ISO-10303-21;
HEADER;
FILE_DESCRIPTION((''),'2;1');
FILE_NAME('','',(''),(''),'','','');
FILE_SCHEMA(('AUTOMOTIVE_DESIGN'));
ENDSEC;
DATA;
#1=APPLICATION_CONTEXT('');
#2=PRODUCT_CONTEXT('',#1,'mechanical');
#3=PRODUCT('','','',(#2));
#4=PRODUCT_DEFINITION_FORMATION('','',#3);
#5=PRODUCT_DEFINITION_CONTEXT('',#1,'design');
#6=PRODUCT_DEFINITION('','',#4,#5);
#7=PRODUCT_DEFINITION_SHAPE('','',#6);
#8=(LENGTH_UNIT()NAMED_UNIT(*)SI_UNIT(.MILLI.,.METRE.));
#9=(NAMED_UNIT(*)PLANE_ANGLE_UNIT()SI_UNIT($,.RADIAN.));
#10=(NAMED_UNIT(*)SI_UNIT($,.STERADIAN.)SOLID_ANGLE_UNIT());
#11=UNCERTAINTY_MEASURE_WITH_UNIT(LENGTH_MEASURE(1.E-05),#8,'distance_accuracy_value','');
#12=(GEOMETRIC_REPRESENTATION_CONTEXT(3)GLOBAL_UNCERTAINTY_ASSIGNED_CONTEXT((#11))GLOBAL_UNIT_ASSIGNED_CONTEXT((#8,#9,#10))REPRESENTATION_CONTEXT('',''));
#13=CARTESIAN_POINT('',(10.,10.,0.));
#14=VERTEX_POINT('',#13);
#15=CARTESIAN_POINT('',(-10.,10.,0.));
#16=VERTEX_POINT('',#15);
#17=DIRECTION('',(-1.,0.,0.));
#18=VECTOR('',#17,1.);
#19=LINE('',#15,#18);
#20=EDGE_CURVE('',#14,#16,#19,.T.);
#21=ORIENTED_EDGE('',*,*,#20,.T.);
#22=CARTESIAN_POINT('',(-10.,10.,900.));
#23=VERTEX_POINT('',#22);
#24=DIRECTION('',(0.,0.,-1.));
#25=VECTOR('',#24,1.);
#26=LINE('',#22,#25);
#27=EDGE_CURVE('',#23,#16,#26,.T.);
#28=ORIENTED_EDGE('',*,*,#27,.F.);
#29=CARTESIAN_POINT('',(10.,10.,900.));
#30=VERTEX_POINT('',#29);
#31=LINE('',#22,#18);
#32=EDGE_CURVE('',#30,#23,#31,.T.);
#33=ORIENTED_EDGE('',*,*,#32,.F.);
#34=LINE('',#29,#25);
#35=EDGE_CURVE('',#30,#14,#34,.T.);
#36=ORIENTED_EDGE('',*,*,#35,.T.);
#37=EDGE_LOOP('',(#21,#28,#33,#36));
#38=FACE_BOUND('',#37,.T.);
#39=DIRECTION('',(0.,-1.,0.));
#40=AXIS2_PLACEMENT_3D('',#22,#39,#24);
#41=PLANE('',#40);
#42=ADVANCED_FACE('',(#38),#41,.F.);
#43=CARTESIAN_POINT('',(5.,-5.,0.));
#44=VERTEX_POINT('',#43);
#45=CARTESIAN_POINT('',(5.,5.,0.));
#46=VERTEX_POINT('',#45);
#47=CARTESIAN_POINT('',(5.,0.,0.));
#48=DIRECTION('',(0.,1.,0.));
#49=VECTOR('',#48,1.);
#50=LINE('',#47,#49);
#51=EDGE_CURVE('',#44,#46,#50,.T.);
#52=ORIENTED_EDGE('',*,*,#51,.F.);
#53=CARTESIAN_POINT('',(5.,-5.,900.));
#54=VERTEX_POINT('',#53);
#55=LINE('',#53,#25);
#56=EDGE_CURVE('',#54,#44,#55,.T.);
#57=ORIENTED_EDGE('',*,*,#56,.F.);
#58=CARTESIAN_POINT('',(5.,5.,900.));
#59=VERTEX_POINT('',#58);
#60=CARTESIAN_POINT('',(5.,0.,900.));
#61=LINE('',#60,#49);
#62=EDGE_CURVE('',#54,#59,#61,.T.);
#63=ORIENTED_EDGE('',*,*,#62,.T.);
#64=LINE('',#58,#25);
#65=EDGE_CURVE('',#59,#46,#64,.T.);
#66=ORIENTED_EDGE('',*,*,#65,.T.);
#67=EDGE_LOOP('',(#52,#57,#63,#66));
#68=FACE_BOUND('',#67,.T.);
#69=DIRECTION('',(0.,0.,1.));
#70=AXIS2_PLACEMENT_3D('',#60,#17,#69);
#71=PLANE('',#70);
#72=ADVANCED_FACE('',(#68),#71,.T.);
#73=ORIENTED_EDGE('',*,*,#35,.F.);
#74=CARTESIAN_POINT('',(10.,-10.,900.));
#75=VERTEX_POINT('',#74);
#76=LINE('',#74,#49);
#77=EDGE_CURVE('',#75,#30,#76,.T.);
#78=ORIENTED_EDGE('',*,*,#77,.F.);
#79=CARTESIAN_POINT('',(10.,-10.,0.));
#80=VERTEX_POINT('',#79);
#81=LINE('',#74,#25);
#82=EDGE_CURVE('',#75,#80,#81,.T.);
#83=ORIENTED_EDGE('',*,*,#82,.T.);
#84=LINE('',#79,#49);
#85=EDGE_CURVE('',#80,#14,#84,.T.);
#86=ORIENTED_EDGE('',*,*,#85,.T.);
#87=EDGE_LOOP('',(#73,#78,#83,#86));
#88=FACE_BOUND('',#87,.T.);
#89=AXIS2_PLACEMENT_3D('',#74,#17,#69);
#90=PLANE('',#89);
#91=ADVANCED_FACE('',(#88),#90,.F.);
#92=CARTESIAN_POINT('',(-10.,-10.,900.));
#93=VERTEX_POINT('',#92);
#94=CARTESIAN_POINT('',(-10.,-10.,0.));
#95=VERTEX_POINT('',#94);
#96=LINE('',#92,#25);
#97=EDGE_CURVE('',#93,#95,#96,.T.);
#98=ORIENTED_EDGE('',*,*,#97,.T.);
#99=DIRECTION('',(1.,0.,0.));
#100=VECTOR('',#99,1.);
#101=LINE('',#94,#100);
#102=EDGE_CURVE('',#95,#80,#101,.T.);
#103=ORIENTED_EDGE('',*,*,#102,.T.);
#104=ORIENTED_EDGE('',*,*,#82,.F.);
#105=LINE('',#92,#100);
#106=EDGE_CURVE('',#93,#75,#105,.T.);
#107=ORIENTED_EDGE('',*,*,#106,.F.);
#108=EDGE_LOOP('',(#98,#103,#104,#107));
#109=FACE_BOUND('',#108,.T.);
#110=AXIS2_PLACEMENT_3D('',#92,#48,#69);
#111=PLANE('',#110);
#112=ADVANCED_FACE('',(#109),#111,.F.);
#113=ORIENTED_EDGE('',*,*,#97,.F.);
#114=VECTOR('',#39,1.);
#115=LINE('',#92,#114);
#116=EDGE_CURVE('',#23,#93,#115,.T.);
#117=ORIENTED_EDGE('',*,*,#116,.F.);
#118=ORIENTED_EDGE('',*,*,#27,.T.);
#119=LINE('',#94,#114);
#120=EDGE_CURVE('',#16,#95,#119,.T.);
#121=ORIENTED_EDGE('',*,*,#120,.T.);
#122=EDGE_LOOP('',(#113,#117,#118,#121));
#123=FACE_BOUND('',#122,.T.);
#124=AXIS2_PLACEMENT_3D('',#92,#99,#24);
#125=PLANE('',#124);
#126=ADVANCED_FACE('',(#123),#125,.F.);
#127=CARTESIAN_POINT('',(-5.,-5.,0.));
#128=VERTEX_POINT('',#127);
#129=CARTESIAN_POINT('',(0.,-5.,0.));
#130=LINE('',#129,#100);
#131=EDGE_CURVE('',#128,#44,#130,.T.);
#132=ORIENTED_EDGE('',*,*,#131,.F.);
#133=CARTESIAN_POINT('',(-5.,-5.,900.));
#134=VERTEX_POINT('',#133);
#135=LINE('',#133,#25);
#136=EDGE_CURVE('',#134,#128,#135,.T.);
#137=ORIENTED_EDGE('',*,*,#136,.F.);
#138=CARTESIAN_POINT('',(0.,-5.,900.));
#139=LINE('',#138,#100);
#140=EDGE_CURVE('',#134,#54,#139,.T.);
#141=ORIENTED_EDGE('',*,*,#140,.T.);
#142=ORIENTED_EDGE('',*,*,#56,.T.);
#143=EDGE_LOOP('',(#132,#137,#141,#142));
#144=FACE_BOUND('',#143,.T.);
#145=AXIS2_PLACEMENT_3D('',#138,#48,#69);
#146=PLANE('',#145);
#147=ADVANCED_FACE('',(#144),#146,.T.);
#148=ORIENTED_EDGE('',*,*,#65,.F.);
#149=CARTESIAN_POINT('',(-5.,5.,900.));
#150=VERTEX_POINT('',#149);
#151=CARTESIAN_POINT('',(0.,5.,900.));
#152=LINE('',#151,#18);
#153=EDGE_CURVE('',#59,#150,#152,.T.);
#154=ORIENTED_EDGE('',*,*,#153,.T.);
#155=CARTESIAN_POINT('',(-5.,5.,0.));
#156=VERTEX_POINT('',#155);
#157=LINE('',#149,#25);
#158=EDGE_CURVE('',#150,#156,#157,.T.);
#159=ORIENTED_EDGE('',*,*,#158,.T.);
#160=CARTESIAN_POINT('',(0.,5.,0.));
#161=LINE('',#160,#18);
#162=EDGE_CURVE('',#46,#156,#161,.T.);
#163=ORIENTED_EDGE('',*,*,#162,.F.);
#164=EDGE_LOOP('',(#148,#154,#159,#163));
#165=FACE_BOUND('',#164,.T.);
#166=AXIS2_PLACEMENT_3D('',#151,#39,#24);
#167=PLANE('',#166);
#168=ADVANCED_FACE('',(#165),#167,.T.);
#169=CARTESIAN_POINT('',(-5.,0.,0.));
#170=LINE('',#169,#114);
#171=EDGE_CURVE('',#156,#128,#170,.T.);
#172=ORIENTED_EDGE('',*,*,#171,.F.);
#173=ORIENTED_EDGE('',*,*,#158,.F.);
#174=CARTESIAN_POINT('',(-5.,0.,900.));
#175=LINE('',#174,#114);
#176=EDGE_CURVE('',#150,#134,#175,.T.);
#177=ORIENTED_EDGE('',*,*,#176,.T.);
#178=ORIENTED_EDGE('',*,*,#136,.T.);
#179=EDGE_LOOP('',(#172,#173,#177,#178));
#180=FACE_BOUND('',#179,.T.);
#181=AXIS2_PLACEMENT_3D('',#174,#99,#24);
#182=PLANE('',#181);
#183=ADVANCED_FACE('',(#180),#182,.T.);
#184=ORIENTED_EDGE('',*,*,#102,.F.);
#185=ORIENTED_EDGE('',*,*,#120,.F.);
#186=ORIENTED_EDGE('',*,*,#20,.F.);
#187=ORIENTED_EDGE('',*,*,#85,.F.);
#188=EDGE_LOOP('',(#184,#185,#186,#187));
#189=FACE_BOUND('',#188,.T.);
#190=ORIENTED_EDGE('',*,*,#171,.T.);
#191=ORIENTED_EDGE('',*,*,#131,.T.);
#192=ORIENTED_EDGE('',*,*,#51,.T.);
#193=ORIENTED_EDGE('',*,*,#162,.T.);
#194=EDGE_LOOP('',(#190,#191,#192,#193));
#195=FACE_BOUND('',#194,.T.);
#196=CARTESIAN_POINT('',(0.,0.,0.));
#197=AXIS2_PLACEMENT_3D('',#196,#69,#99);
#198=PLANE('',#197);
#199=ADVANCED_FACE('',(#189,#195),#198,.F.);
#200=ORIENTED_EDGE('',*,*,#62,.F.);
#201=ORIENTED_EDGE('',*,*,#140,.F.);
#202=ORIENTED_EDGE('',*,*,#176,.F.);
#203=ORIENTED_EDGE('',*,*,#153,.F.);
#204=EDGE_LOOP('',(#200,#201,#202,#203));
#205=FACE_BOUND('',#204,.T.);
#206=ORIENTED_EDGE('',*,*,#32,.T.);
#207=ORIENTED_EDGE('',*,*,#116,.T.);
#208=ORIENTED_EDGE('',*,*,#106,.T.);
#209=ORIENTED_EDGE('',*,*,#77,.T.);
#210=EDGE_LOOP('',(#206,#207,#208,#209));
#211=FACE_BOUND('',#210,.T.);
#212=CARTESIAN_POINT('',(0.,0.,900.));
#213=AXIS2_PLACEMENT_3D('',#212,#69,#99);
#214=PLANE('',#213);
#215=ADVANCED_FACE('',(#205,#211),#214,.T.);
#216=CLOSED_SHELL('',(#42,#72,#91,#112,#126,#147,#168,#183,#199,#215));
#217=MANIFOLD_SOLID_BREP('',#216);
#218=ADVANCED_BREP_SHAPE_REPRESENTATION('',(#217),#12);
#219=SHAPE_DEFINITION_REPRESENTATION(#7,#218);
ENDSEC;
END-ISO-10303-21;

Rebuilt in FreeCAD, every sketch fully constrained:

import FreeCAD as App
import Part
import Sketcher
from FreeCAD import Vector
Q = App.Units.Quantity


def add_polygon(sketch, points):
    """Adds a closed chain of lines whose ends are joined by coincident constraints."""
    first, n = sketch.GeometryCount, len(points)
    for a, b in zip(points, points[1:] + points[:1]):
        sketch.addGeometry(Part.LineSegment(App.Vector(*a, 0), App.Vector(*b, 0)), False)
    for i in range(n):
        sketch.addConstraint(Sketcher.Constraint("Coincident", first + i, 2, first + (i + 1) % n, 1))

doc = App.newDocument("Part")
params = doc.addObject("Spreadsheet::Sheet", "Params")
for row, (alias, value) in enumerate([
    ("sketch1_width", "20 mm"),
    ("sketch1_width2", "10 mm"),
    ("pad1_length", "900 mm"),
], start=1):
    params.set(f"A{row}", alias)
    params.set(f"B{row}", "=" + value)
    params.setAlias(f"B{row}", alias)

body = doc.addObject("PartDesign::Body", "Body")

# Sketch on XY plane
sketch1 = doc.addObject("Sketcher::SketchObject", "Sketch")
body.addObject(sketch1)
sketch1.AttachmentSupport = (doc.XY_Plane, [""])
sketch1.MapMode = "FlatFace"
add_polygon(sketch1, [(-10, 10), (-10, -10), (10, -10), (10, 10)])  # lines 0-3
add_polygon(sketch1, [(5, -5), (-5, -5), (-5, 5), (5, 5)])  # lines 4-7
sketch1.addConstraint([
    Sketcher.Constraint("Vertical", 0),
    Sketcher.Constraint("Horizontal", 1),
    Sketcher.Constraint("Vertical", 2),
    Sketcher.Constraint("Horizontal", 3),
    Sketcher.Constraint("Horizontal", 4),
    Sketcher.Constraint("Vertical", 5),
    Sketcher.Constraint("Horizontal", 6),
    Sketcher.Constraint("Vertical", 7),
    Sketcher.Constraint("Symmetric", 0, 2, 2, 2, -1, 1),
    Sketcher.Constraint("Symmetric", 4, 2, 6, 2, -1, 1),
    Sketcher.Constraint("Equal", 3, 0),
    Sketcher.Constraint("Equal", 6, 5),
    Sketcher.Constraint("DistanceX", 1, 1, 1, 2, Q("20 mm")),
    Sketcher.Constraint("DistanceX", 4, 2, 4, 1, Q("10 mm")),
])
sketch1.setExpression("Constraints[20]", "Params.sketch1_width")
sketch1.setExpression("Constraints[21]", "Params.sketch1_width2")
pad1 = doc.addObject("PartDesign::Pad", "Pad")
body.addObject(pad1)
pad1.Profile = sketch1
pad1.setExpression("Length", "Params.pad1_length")

doc.recompute()
